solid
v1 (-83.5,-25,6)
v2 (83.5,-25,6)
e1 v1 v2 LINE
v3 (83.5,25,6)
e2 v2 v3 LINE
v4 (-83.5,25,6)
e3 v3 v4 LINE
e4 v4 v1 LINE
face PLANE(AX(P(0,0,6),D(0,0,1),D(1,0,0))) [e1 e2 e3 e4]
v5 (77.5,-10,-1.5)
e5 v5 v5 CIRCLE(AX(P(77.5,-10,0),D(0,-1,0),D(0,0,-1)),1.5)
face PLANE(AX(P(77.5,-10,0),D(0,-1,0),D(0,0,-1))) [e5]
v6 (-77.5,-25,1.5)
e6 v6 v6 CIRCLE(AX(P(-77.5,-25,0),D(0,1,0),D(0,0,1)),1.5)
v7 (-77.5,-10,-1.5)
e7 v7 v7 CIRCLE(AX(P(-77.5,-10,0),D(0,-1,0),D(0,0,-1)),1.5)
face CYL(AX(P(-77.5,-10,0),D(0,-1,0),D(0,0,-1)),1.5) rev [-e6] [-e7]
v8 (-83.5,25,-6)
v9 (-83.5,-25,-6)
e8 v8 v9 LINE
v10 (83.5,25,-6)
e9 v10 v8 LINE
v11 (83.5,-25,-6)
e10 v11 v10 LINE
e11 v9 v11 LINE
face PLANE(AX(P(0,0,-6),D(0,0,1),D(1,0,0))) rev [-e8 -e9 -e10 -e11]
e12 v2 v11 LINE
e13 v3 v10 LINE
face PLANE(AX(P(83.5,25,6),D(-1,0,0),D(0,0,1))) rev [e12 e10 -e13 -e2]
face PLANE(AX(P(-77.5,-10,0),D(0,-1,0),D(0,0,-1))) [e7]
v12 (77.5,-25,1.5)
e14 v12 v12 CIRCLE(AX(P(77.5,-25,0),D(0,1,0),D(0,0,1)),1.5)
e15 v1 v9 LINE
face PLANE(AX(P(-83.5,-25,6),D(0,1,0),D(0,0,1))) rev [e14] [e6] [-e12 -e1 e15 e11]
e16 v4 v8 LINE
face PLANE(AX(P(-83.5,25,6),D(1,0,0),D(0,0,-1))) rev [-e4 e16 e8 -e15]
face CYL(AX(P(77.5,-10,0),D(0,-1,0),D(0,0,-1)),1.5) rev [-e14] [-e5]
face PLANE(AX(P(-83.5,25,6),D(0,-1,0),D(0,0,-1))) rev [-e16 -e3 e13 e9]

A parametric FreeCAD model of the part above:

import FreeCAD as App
import Part
import Sketcher

V = App.Vector


def add_polygon(sketch, points):
    """Adds a closed chain of lines whose ends are joined by coincident constraints."""
    first, n = sketch.GeometryCount, len(points)
    for a, b in zip(points, points[1:] + points[:1]):
        sketch.addGeometry(Part.LineSegment(App.Vector(*a, 0), App.Vector(*b, 0)), False)
    for i in range(n):
        sketch.addConstraint(Sketcher.Constraint("Coincident", first + i, 2, first + (i + 1) % n, 1))

doc = App.newDocument("Part")
params = doc.addObject("Spreadsheet::Sheet", "Params")
for row, (alias, value) in enumerate([
    ("sketch1_width", "167 mm"),
    ("sketch1_height", "50 mm"),
    ("pad1_length", "12 mm"),
    ("sketch2_diameter", "3 mm"),
    ("pocket1_length", "30 mm"),
], start=1):
    params.set(f"A{row}", alias)
    params.set(f"B{row}", "=" + value)
    params.setAlias(f"B{row}", alias)

body = doc.addObject("PartDesign::Body", "Body")

# Sketch on XY plane
sketch1 = body.newObject("Sketcher::SketchObject", "Sketch")
sketch1.AttachmentSupport = (doc.getObject("XY_Plane"), [""])
sketch1.MapMode = "FlatFace"
add_polygon(sketch1, [(-84, 25), (-84, -25), (84, -25), (84, 25)])  # lines 0-3
sketch1.addConstraint([
    Sketcher.Constraint("Vertical", 0),
    Sketcher.Constraint("Horizontal", 1),
    Sketcher.Constraint("Vertical", 2),
    Sketcher.Constraint("Horizontal", 3),
    Sketcher.Constraint("Symmetric", 0, 2, 2, 2, -1, 1),
    Sketcher.Constraint("DistanceX", 1, 1, 1, 2, 167.0),
    Sketcher.Constraint("DistanceY", 0, 2, 0, 1, 50.0),
])
sketch1.setExpression("Constraints[9]", "Params.sketch1_width")
sketch1.setExpression("Constraints[10]", "Params.sketch1_height")
pad1 = body.newObject("PartDesign::Pad", "Pad")
pad1.Profile = sketch1
pad1.setExpression("Length", "Params.pad1_length")
pad1.Midplane = True

# Sketch on XZ plane
sketch2 = body.newObject("Sketcher::SketchObject", "Sketch001")
sketch2.AttachmentSupport = (doc.getObject("XZ_Plane"), [""])
sketch2.MapMode = "FlatFace"
sketch2.AttachmentOffset = App.Placement(V(0, 0, 25), App.Rotation())
sketch2.addGeometry([
    Part.Circle(V(-77.5, 0, 0), V(0, 0, 1), 1.5),
    Part.Circle(V(77.5, 0, 0), V(0, 0, 1), 1.5),
], False)
sketch2.addConstraint([
    Sketcher.Constraint("Equal", 0, 1),
    Sketcher.Constraint("Symmetric", 0, 3, 1, 3, -1, 1),
    Sketcher.Constraint("PointOnObject", 0, 3, -1),
    Sketcher.Constraint("Diameter", 0, 3.0),
    Sketcher.Constraint("DistanceX", 0, 3, 1, 3, 155.0),
])
sketch2.setExpression("Constraints[3]", "Params.sketch2_diameter")
pocket1 = body.newObject("PartDesign::Pocket", "Pocket")
pocket1.Profile = sketch2
pocket1.setExpression("Length", "Params.pocket1_length")
pocket1.Midplane = True

doc.recompute()
